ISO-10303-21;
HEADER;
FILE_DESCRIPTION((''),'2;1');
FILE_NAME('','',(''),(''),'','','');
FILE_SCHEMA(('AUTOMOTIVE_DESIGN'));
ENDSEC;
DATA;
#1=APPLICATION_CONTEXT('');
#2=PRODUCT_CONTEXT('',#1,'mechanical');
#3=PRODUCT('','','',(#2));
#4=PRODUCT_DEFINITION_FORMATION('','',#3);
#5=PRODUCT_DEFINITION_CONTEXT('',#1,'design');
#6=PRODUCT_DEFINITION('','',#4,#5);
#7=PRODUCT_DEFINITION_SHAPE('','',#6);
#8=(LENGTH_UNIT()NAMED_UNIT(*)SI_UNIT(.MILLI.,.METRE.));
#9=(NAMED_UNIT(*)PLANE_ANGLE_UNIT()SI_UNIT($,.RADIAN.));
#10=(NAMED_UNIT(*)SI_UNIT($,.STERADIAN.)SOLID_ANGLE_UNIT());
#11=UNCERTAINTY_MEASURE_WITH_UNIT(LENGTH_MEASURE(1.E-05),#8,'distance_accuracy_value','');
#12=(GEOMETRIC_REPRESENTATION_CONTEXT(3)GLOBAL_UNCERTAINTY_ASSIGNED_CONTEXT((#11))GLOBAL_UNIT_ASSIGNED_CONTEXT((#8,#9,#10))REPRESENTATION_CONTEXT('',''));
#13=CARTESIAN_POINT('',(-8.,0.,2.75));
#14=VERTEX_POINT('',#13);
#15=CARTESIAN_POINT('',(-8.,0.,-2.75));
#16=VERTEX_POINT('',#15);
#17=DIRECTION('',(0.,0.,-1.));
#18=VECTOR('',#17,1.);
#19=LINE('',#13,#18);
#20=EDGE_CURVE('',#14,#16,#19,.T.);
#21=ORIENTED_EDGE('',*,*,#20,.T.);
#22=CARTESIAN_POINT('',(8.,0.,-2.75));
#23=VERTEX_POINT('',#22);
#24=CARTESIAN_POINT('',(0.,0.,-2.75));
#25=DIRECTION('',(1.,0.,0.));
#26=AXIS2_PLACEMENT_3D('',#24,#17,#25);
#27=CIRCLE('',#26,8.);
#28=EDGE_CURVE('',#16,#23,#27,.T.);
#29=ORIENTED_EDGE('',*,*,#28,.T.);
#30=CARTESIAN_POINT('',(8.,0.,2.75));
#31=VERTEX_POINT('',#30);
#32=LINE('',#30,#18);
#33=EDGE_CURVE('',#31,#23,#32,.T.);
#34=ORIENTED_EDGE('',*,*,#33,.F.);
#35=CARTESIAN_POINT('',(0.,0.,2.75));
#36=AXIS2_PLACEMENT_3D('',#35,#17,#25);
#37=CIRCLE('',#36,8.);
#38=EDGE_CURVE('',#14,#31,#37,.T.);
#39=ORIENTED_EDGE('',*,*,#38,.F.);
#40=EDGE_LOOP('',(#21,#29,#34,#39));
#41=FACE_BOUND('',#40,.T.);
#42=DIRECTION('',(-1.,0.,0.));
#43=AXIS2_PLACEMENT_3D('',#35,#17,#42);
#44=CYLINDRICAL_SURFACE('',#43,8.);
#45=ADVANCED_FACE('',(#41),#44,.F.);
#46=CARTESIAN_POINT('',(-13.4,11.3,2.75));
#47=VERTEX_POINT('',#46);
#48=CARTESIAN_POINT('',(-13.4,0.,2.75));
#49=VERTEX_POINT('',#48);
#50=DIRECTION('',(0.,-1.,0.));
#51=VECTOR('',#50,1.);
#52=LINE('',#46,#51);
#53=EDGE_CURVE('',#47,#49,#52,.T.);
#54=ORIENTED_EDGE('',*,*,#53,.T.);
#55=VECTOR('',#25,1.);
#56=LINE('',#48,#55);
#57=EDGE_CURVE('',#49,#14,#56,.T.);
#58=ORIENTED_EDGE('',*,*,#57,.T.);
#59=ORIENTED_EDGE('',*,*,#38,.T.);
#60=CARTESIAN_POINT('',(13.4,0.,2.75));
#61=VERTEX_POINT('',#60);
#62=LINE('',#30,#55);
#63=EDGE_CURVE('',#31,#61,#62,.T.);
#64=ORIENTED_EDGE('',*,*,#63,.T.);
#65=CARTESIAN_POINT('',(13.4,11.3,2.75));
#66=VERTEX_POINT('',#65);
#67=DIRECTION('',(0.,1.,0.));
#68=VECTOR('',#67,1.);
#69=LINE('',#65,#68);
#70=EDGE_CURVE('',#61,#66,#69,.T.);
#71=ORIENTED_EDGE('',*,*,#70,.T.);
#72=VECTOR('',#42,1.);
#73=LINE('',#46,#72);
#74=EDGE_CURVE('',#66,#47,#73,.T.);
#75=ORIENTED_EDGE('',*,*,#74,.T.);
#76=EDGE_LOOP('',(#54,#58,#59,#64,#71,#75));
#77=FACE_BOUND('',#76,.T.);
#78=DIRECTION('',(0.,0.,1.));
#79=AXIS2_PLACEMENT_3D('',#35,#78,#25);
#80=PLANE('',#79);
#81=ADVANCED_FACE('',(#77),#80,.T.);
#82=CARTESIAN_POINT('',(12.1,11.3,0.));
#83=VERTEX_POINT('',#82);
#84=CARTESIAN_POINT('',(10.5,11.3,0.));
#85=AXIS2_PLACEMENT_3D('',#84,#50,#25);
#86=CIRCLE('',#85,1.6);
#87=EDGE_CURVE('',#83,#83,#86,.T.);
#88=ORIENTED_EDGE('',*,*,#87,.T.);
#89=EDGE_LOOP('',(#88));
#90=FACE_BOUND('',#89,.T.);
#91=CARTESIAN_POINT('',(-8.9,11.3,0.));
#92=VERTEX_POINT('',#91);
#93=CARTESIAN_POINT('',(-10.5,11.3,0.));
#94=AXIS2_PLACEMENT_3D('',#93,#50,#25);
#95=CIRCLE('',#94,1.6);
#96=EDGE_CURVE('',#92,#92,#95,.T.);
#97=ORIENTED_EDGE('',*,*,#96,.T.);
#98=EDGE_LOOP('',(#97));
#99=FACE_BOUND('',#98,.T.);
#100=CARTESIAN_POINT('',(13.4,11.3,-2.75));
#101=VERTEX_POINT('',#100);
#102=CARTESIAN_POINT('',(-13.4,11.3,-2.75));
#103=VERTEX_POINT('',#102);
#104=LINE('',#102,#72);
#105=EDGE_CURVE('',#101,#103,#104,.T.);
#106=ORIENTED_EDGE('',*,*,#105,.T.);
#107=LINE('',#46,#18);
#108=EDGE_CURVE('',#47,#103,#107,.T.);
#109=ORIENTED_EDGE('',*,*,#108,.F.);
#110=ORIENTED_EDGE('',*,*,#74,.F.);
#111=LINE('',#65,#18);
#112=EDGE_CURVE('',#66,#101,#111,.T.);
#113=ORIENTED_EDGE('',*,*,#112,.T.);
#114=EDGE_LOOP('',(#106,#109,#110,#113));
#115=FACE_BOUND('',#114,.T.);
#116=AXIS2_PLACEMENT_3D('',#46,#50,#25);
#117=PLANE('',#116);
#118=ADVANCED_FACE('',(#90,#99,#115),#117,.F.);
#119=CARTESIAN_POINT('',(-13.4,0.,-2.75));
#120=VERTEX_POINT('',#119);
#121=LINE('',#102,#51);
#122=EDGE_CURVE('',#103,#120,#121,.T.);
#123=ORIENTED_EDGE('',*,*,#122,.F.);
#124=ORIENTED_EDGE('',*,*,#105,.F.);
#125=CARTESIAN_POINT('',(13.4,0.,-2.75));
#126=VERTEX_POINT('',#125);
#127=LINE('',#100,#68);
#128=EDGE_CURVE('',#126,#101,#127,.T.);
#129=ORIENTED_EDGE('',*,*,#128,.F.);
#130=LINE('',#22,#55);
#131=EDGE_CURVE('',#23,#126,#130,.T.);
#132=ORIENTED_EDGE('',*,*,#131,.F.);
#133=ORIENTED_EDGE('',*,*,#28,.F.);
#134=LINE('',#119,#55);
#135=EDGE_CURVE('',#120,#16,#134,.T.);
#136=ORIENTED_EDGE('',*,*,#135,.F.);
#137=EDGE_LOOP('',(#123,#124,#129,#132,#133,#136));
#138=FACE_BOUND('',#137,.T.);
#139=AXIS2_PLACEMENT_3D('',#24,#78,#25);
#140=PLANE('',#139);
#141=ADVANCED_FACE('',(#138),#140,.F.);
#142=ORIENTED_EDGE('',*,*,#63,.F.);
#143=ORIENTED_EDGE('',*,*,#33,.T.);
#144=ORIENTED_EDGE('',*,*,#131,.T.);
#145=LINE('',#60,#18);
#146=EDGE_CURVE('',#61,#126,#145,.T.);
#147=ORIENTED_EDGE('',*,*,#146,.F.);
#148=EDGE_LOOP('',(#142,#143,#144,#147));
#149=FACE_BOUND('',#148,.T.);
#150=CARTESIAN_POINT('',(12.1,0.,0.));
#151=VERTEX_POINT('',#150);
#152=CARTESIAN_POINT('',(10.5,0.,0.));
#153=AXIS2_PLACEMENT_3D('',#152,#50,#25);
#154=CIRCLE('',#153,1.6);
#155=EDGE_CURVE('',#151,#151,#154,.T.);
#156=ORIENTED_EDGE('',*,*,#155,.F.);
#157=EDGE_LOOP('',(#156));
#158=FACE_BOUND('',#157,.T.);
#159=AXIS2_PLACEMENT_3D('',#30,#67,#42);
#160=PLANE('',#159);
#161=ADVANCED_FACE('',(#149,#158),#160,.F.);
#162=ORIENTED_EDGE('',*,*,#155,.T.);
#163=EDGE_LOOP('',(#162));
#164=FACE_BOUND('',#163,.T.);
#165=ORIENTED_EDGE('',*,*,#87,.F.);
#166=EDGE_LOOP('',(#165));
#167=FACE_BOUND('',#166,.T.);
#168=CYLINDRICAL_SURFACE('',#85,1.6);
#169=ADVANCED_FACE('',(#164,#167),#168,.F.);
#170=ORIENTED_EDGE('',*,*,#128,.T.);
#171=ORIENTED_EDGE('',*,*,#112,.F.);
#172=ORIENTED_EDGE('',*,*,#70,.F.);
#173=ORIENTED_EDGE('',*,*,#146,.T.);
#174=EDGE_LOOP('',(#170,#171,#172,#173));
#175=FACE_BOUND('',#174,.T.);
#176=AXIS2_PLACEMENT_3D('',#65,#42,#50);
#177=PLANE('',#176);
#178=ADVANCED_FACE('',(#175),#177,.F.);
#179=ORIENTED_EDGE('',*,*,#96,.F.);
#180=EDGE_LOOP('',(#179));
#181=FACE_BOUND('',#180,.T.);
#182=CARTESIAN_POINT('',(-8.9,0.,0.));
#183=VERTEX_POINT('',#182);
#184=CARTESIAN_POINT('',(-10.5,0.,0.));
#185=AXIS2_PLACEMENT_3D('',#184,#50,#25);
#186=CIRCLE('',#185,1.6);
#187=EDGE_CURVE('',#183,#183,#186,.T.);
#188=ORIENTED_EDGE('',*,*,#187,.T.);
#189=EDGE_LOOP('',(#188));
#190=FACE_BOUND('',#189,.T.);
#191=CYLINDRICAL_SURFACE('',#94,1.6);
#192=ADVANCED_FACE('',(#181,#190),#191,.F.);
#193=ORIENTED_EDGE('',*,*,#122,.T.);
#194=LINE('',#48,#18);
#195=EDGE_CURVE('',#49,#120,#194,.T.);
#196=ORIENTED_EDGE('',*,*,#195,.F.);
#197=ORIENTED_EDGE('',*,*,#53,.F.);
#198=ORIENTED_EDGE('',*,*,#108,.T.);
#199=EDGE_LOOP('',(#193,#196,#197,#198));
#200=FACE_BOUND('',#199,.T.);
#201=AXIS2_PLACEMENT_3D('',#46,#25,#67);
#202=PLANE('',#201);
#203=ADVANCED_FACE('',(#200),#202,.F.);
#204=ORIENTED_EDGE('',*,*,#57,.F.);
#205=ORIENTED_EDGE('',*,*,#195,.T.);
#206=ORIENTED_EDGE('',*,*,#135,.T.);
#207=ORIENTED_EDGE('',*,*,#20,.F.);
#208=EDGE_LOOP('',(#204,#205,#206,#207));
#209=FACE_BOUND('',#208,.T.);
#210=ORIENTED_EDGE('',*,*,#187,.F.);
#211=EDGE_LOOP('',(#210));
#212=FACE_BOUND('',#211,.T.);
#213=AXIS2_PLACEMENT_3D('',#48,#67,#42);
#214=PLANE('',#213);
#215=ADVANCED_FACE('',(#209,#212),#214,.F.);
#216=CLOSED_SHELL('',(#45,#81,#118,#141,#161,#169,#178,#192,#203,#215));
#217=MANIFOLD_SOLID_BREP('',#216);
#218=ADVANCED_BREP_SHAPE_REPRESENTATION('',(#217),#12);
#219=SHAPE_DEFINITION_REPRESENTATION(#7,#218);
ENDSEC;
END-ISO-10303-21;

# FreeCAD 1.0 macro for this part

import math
import FreeCAD as App
import Part
import Sketcher
from FreeCAD import Vector

doc = App.newDocument("Part")
body = doc.addObject("PartDesign::Body", "Body")

# Sketch on XY plane
sketch1 = body.newObject("Sketcher::SketchObject", "Sketch")
sketch1.AttachmentSupport = (doc.getObject("XY_Plane"), [""])
sketch1.MapMode = "FlatFace"
sketch1.addGeometry([
    Part.LineSegment(Vector(13.4, 11.3, 0), Vector(-13.4, 11.3, 0)),  # 0
    Part.LineSegment(Vector(-13.4, 11.3, 0), Vector(-13.4, 0, 0)),  # 1
    Part.LineSegment(Vector(-13.4, 0, 0), Vector(-8, 0, 0)),  # 2
    Part.ArcOfCircle(Part.Circle(Vector(0, 0, 0), Vector(0, 0, 1), 8), math.radians(0), math.radians(180)),  # 3
    Part.LineSegment(Vector(8, 0, 0), Vector(13.4, 0, 0)),  # 4
    Part.LineSegment(Vector(13.4, 0, 0), Vector(13.4, 11.3, 0)),  # 5
], False)
sketch1.addConstraint([
    Sketcher.Constraint("Coincident", 0, 2, 1, 1),
    Sketcher.Constraint("Coincident", 1, 2, 2, 1),
    Sketcher.Constraint("Coincident", 2, 2, 3, 2),
    Sketcher.Constraint("Coincident", 3, 1, 4, 1),
    Sketcher.Constraint("Coincident", 4, 2, 5, 1),
    Sketcher.Constraint("Coincident", 5, 2, 0, 1),
    Sketcher.Constraint("Horizontal", 0),
    Sketcher.Constraint("Vertical", 1),
    Sketcher.Constraint("Horizontal", 2),
    Sketcher.Constraint("Horizontal", 4),
    Sketcher.Constraint("Vertical", 5),
    Sketcher.Constraint("Coincident", 3, 3, -1, 1),
    Sketcher.Constraint("Symmetric", 1, 2, 4, 2, -1, 1),
    Sketcher.Constraint("PointOnObject", 1, 2, -1),
    Sketcher.Constraint("Radius", 3, 8.0),
    Sketcher.Constraint("DistanceX", 0, 2, 0, 1, 26.8),
    Sketcher.Constraint("DistanceY", 1, 2, 1, 1, 11.3),
])
pad1 = body.newObject("PartDesign::Pad", "Pad")
pad1.Profile = sketch1
pad1.Length = 5.5
pad1.Midplane = True

# Sketch on XZ plane
sketch2 = body.newObject("Sketcher::SketchObject", "Sketch001")
sketch2.AttachmentSupport = (doc.getObject("XZ_Plane"), [""])
sketch2.MapMode = "FlatFace"
sketch2.addGeometry([
    Part.Circle(Vector(-10.5, 0, 0), Vector(0, 0, 1), 1.6),
    Part.Circle(Vector(10.5, 0, 0), Vector(0, 0, 1), 1.6),
], False)
sketch2.addConstraint([
    Sketcher.Constraint("Equal", 0, 1),
    Sketcher.Constraint("Symmetric", 0, 3, 1, 3, -1, 1),
    Sketcher.Constraint("PointOnObject", 0, 3, -1),
    Sketcher.Constraint("Diameter", 0, 3.2),
    Sketcher.Constraint("DistanceX", 0, 3, 1, 3, 21.0),
])
pocket1 = body.newObject("PartDesign::Pocket", "Pocket")
pocket1.Profile = sketch2
pocket1.Type = "ThroughAll"

doc.recompute()
